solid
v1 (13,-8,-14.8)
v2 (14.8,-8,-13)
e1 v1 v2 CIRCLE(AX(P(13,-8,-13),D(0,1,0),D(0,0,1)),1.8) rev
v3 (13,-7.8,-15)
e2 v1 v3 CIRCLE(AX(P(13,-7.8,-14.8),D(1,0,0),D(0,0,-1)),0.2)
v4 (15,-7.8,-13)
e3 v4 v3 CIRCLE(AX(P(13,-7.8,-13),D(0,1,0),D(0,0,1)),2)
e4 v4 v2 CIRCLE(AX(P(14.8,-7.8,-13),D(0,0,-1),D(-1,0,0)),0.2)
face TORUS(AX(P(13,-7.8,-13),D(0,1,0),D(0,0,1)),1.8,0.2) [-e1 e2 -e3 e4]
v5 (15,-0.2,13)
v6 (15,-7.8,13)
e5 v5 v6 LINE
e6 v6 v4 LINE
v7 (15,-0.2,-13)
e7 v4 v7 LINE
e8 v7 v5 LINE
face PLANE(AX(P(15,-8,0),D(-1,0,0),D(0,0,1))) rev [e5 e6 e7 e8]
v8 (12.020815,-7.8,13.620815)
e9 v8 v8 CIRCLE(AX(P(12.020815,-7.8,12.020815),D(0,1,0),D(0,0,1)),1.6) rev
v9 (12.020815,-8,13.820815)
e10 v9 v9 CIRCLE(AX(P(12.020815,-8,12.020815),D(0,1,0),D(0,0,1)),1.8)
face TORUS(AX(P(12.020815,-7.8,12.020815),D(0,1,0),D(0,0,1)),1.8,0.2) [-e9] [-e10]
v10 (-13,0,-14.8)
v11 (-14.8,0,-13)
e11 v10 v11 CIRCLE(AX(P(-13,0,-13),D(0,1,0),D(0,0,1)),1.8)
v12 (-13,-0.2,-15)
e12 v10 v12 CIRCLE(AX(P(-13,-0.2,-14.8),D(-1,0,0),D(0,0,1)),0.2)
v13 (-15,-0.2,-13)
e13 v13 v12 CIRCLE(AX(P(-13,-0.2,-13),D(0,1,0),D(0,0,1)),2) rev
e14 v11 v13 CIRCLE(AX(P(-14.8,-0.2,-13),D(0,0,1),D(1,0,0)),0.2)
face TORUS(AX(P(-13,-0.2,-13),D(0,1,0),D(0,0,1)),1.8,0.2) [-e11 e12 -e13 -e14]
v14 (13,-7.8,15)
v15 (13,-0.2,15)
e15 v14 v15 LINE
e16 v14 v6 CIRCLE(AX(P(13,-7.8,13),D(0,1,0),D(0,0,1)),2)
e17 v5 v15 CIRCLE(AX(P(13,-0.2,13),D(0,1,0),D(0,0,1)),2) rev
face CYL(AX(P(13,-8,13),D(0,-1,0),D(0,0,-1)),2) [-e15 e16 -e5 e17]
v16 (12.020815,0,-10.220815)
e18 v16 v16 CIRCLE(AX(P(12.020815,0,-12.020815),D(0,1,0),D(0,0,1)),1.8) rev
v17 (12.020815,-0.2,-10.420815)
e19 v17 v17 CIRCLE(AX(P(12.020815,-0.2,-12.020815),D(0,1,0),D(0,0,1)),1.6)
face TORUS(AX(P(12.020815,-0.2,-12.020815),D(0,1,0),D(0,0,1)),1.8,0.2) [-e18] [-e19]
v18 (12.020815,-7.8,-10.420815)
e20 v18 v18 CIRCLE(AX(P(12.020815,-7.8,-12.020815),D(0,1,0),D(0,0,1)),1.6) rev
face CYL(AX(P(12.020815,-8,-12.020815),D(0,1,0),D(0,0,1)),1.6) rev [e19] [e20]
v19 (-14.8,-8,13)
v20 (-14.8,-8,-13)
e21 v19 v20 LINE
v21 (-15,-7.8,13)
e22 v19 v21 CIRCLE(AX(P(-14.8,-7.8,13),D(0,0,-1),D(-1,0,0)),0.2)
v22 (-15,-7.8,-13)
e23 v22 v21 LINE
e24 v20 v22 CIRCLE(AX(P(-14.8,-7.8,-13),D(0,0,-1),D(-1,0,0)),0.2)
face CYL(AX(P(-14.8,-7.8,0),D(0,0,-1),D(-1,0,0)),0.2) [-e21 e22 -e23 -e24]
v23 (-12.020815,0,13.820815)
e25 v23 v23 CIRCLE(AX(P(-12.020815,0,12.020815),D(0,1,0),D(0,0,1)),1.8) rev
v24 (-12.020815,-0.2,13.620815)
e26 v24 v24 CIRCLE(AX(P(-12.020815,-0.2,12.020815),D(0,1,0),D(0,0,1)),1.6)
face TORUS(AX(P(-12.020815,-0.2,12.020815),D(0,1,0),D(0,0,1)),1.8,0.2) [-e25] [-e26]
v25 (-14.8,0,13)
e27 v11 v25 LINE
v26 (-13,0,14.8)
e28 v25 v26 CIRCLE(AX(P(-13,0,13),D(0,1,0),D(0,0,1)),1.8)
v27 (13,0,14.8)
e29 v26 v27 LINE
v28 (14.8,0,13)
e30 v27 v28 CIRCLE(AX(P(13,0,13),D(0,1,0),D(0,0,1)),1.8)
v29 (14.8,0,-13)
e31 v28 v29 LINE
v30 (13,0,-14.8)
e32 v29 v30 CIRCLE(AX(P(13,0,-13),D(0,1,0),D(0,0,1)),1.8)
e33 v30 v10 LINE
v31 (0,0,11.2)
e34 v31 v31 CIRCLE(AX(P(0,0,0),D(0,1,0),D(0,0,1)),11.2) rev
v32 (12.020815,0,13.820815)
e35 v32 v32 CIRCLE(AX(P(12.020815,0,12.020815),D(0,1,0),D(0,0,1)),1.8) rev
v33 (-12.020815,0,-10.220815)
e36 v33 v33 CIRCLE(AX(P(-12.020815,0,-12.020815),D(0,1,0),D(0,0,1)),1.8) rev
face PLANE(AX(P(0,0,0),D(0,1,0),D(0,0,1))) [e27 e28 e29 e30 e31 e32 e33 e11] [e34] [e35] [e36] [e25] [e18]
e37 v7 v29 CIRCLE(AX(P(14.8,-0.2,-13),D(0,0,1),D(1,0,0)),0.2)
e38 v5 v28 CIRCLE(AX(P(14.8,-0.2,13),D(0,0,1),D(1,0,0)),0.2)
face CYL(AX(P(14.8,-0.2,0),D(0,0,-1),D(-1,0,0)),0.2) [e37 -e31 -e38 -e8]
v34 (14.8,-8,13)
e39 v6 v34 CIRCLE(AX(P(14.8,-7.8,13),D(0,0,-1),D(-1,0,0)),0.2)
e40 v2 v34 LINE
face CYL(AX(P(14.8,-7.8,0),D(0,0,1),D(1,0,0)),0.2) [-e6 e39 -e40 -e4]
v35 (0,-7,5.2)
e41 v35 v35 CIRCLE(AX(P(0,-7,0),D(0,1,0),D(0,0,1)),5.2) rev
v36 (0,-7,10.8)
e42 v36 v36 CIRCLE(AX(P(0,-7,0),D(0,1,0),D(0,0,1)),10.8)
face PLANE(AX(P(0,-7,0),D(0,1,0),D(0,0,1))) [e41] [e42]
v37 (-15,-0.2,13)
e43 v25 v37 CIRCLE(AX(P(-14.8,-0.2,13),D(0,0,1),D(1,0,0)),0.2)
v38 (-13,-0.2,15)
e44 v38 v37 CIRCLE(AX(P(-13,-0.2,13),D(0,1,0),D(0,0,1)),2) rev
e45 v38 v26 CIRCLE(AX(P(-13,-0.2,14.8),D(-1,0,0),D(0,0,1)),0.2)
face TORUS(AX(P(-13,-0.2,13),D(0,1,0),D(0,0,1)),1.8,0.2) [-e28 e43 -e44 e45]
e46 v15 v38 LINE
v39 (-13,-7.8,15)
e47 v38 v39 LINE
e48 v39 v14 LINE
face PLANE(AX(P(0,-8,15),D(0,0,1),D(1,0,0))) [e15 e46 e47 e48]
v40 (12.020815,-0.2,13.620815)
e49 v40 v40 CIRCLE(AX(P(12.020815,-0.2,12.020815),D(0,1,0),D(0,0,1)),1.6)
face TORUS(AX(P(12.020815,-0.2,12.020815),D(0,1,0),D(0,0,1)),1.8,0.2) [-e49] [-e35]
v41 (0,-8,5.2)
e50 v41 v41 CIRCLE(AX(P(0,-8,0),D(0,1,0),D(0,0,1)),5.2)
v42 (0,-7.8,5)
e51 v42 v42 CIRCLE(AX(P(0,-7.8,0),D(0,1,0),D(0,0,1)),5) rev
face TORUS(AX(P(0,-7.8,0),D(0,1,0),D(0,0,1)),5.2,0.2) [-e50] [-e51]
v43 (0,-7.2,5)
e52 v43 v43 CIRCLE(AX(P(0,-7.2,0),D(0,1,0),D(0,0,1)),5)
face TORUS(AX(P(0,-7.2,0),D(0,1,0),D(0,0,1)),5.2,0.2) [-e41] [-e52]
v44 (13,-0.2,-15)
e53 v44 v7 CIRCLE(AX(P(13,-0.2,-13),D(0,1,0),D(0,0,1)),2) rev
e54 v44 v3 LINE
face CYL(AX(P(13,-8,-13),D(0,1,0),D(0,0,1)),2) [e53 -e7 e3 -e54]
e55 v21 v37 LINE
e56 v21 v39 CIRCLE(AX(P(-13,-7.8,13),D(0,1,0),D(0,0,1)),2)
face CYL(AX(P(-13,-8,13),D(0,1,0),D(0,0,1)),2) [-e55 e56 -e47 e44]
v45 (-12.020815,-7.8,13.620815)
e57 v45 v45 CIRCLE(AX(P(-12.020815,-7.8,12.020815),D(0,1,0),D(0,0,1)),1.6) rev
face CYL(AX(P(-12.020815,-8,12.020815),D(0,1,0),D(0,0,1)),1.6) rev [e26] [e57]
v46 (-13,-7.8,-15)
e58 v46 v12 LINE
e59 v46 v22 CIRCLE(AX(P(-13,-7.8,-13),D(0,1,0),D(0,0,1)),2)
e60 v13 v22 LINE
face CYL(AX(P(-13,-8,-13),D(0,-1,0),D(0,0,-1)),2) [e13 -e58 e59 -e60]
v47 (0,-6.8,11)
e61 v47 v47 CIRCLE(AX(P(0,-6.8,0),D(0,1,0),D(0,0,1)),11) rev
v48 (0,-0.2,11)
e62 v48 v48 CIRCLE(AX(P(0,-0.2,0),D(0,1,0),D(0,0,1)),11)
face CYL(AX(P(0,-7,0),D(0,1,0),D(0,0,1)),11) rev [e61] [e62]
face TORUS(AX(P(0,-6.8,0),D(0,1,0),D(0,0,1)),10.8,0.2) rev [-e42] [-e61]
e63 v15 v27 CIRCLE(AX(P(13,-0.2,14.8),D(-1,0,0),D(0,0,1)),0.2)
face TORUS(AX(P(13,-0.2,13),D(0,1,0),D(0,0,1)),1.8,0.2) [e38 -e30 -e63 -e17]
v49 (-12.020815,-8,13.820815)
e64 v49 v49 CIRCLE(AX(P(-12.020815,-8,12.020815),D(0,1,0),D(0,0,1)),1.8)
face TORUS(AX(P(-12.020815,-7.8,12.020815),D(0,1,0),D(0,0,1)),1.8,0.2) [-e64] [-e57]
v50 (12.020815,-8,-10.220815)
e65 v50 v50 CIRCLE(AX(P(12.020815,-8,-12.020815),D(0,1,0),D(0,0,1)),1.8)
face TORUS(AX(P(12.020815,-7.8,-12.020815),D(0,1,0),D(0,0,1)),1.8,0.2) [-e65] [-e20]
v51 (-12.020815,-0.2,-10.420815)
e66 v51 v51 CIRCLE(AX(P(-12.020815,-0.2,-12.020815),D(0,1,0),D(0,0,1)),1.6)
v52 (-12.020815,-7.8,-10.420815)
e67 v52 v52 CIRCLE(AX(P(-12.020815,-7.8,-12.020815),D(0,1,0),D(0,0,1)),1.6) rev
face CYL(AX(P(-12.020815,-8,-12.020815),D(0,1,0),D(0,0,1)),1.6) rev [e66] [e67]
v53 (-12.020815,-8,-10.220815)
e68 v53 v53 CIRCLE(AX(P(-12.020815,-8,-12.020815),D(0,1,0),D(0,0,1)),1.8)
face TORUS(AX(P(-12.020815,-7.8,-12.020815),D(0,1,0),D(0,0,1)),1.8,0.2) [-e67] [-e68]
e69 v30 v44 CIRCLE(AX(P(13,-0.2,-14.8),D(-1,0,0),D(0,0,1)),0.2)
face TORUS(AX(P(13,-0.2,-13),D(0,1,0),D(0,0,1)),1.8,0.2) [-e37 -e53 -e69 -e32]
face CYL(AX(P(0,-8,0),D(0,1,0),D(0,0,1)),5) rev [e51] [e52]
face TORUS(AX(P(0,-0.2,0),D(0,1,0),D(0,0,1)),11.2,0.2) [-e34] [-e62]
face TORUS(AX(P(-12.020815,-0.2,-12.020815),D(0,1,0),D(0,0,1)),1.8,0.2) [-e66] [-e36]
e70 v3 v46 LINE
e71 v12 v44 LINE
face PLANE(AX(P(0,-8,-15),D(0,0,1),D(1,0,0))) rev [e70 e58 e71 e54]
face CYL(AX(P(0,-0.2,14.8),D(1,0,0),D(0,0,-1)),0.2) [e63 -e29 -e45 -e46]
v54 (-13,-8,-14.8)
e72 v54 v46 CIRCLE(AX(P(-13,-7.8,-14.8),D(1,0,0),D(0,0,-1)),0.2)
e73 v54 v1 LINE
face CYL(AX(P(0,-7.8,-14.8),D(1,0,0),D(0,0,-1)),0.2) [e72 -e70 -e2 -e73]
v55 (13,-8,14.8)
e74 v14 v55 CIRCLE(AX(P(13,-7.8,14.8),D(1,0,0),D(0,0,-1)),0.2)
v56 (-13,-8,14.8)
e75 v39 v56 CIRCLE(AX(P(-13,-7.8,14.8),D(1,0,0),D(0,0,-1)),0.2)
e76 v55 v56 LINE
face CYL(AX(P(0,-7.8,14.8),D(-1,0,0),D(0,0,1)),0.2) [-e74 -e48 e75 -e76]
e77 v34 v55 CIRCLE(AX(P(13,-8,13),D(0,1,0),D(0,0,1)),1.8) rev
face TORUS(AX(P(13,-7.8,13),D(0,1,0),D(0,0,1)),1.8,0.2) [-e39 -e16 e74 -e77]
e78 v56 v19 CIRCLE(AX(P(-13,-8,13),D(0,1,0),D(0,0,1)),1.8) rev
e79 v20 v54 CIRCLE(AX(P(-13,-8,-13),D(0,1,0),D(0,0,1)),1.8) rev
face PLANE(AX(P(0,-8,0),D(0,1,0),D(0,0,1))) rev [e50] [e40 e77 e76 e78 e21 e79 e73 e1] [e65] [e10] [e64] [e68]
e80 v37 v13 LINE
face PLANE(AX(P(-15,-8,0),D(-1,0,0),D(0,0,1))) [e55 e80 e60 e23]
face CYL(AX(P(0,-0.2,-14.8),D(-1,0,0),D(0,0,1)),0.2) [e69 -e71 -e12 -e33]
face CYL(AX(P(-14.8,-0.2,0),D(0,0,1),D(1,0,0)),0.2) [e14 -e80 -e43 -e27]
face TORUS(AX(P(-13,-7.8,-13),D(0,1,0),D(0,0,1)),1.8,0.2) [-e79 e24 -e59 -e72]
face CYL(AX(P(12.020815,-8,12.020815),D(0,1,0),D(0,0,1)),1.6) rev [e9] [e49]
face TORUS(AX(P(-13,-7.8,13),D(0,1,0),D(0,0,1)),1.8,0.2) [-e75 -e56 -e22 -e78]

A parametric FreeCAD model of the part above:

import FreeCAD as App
import Part
import Sketcher
from FreeCAD import Vector


def edges_at(feature, points):
    """Names of the edges that pass closest to the given points."""
    edges = feature.Shape.Edges
    near = lambda p: min(range(len(edges)), key=lambda i: edges[i].distToShape(Part.Vertex(*p))[0])
    return sorted({f"Edge{near(p) + 1}" for p in points})


def add_polygon(sketch, points):
    """Adds a closed chain of lines whose ends are joined by coincident constraints."""
    first, n = sketch.GeometryCount, len(points)
    for a, b in zip(points, points[1:] + points[:1]):
        sketch.addGeometry(Part.LineSegment(App.Vector(*a, 0), App.Vector(*b, 0)), False)
    for i in range(n):
        sketch.addConstraint(Sketcher.Constraint("Coincident", first + i, 2, first + (i + 1) % n, 1))

doc = App.newDocument("Part")
body = doc.addObject("PartDesign::Body", "Body")

# Sketch on XZ plane
sketch1 = body.newObject("Sketcher::SketchObject", "Sketch")
sketch1.AttachmentSupport = (doc.getObject("XZ_Plane"), [""])
sketch1.MapMode = "FlatFace"
add_polygon(sketch1, [(-15, -15), (-15, 15), (15, 15), (15, -15)])  # lines 0-3
sketch1.addGeometry(Part.Circle(Vector(-12, 12, 0), Vector(0, 0, 1), 1.6), False)  # 4
sketch1.addGeometry(Part.Circle(Vector(0, 0, 0), Vector(0, 0, 1), 5), False)  # 5
sketch1.addGeometry(Part.Circle(Vector(12, 12, 0), Vector(0, 0, 1), 1.6), False)  # 6
sketch1.addGeometry(Part.Circle(Vector(-12, -12, 0), Vector(0, 0, 1), 1.6), False)  # 7
sketch1.addGeometry(Part.Circle(Vector(12, -12, 0), Vector(0, 0, 1), 1.6), False)  # 8
sketch1.addConstraint([
    Sketcher.Constraint("Vertical", 0),
    Sketcher.Constraint("Horizontal", 1),
    Sketcher.Constraint("Vertical", 2),
    Sketcher.Constraint("Horizontal", 3),
    Sketcher.Constraint("Coincident", 5, 3, -1, 1),
    Sketcher.Constraint("Equal", 4, 6),
    Sketcher.Constraint("Equal", 6, 7),
    Sketcher.Constraint("Equal", 7, 8),
    Sketcher.Constraint("Symmetric", 6, 3, 7, 3, -1, 1),
    Sketcher.Constraint("Symmetric", 4, 3, 8, 3, -1, 1),
    Sketcher.Constraint("Symmetric", 0, 2, 2, 2, -1, 1),
    Sketcher.Constraint("Symmetric", 4, 3, 6, 3, -2),
    Sketcher.Constraint("Equal", 3, 0),
    Sketcher.Constraint("Diameter", 5, 10.0),
    Sketcher.Constraint("Diameter", 4, 3.2),
    Sketcher.Constraint("DistanceX", 1, 1, 1, 2, 30.0),
    Sketcher.Constraint("DistanceX", 4, 3, 6, 3, 24.041631),
    Sketcher.Constraint("DistanceY", 7, 3, 4, 3, 24.041631),
])
pad1 = body.newObject("PartDesign::Pad", "Pad")
pad1.Profile = sketch1
pad1.Length = 8

# Sketch on XZ plane
sketch2 = body.newObject("Sketcher::SketchObject", "Sketch001")
sketch2.AttachmentSupport = (doc.getObject("XZ_Plane"), [""])
sketch2.MapMode = "FlatFace"
sketch2.addGeometry([
    Part.Circle(Vector(0, 0, 0), Vector(0, 0, 1), 11),
    Part.Circle(Vector(0, 0, 0), Vector(0, 0, 1), 5),
], False)
sketch2.addConstraint([
    Sketcher.Constraint("Coincident", 0, 3, -1, 1),
    Sketcher.Constraint("Coincident", 1, 3, -1, 1),
    Sketcher.Constraint("Diameter", 0, 22.0),
    Sketcher.Constraint("Diameter", 1, 10.0),
])
pocket1 = body.newObject("PartDesign::Pocket", "Pocket")
pocket1.Profile = sketch2
pocket1.Length = 7
pocket1.Reversed = True
doc.recompute()

fillet = body.newObject("PartDesign::Fillet", "Fillet")
fillet.Base = (pocket1, edges_at(pocket1, [
    (15, -4, 15),
    (-15, -4, 15),
    (-15, -4, -15),
    (15, -4, -15),
]))
fillet.Radius = 2
doc.recompute()

fillet2 = body.newObject("PartDesign::Fillet", "Fillet001")
fillet2.Base = (fillet, edges_at(fillet, [
    (10.421, -8, 12.021),
    (-13.621, 0, 12.021),
    (-13.621, 0, -12.021),
    (10.421, -8, -12.021),
    (10.421, 0, -12.021),
    (10.421, 0, 12.021),
    (-13.621, -8, -12.021),
    (-11, -7, 0),
    (-5, -7, 0),
    (-11, 0, 0),
    (0, 0, 15),
    (0, -8, 15),
    (15, 0, 0),
    (0, 0, -15),
    (-15, 0, 0),
    (14.414, 0, -14.414),
    (-14.414, 0, -14.414),
    (-14.414, 0, 14.414),
    (14.414, 0, 14.414),
    (15, -8, 0),
    (-15, -8, 0),
    (-13.621, -8, 12.021),
    (0, -8, -15),
    (14.414, -8, -14.414),
    (-14.414, -8, -14.414),
    (-14.414, -8, 14.414),
    (14.414, -8, 14.414),
    (-5, -8, 0),
]))
fillet2.Radius = 0.2

doc.recompute()
